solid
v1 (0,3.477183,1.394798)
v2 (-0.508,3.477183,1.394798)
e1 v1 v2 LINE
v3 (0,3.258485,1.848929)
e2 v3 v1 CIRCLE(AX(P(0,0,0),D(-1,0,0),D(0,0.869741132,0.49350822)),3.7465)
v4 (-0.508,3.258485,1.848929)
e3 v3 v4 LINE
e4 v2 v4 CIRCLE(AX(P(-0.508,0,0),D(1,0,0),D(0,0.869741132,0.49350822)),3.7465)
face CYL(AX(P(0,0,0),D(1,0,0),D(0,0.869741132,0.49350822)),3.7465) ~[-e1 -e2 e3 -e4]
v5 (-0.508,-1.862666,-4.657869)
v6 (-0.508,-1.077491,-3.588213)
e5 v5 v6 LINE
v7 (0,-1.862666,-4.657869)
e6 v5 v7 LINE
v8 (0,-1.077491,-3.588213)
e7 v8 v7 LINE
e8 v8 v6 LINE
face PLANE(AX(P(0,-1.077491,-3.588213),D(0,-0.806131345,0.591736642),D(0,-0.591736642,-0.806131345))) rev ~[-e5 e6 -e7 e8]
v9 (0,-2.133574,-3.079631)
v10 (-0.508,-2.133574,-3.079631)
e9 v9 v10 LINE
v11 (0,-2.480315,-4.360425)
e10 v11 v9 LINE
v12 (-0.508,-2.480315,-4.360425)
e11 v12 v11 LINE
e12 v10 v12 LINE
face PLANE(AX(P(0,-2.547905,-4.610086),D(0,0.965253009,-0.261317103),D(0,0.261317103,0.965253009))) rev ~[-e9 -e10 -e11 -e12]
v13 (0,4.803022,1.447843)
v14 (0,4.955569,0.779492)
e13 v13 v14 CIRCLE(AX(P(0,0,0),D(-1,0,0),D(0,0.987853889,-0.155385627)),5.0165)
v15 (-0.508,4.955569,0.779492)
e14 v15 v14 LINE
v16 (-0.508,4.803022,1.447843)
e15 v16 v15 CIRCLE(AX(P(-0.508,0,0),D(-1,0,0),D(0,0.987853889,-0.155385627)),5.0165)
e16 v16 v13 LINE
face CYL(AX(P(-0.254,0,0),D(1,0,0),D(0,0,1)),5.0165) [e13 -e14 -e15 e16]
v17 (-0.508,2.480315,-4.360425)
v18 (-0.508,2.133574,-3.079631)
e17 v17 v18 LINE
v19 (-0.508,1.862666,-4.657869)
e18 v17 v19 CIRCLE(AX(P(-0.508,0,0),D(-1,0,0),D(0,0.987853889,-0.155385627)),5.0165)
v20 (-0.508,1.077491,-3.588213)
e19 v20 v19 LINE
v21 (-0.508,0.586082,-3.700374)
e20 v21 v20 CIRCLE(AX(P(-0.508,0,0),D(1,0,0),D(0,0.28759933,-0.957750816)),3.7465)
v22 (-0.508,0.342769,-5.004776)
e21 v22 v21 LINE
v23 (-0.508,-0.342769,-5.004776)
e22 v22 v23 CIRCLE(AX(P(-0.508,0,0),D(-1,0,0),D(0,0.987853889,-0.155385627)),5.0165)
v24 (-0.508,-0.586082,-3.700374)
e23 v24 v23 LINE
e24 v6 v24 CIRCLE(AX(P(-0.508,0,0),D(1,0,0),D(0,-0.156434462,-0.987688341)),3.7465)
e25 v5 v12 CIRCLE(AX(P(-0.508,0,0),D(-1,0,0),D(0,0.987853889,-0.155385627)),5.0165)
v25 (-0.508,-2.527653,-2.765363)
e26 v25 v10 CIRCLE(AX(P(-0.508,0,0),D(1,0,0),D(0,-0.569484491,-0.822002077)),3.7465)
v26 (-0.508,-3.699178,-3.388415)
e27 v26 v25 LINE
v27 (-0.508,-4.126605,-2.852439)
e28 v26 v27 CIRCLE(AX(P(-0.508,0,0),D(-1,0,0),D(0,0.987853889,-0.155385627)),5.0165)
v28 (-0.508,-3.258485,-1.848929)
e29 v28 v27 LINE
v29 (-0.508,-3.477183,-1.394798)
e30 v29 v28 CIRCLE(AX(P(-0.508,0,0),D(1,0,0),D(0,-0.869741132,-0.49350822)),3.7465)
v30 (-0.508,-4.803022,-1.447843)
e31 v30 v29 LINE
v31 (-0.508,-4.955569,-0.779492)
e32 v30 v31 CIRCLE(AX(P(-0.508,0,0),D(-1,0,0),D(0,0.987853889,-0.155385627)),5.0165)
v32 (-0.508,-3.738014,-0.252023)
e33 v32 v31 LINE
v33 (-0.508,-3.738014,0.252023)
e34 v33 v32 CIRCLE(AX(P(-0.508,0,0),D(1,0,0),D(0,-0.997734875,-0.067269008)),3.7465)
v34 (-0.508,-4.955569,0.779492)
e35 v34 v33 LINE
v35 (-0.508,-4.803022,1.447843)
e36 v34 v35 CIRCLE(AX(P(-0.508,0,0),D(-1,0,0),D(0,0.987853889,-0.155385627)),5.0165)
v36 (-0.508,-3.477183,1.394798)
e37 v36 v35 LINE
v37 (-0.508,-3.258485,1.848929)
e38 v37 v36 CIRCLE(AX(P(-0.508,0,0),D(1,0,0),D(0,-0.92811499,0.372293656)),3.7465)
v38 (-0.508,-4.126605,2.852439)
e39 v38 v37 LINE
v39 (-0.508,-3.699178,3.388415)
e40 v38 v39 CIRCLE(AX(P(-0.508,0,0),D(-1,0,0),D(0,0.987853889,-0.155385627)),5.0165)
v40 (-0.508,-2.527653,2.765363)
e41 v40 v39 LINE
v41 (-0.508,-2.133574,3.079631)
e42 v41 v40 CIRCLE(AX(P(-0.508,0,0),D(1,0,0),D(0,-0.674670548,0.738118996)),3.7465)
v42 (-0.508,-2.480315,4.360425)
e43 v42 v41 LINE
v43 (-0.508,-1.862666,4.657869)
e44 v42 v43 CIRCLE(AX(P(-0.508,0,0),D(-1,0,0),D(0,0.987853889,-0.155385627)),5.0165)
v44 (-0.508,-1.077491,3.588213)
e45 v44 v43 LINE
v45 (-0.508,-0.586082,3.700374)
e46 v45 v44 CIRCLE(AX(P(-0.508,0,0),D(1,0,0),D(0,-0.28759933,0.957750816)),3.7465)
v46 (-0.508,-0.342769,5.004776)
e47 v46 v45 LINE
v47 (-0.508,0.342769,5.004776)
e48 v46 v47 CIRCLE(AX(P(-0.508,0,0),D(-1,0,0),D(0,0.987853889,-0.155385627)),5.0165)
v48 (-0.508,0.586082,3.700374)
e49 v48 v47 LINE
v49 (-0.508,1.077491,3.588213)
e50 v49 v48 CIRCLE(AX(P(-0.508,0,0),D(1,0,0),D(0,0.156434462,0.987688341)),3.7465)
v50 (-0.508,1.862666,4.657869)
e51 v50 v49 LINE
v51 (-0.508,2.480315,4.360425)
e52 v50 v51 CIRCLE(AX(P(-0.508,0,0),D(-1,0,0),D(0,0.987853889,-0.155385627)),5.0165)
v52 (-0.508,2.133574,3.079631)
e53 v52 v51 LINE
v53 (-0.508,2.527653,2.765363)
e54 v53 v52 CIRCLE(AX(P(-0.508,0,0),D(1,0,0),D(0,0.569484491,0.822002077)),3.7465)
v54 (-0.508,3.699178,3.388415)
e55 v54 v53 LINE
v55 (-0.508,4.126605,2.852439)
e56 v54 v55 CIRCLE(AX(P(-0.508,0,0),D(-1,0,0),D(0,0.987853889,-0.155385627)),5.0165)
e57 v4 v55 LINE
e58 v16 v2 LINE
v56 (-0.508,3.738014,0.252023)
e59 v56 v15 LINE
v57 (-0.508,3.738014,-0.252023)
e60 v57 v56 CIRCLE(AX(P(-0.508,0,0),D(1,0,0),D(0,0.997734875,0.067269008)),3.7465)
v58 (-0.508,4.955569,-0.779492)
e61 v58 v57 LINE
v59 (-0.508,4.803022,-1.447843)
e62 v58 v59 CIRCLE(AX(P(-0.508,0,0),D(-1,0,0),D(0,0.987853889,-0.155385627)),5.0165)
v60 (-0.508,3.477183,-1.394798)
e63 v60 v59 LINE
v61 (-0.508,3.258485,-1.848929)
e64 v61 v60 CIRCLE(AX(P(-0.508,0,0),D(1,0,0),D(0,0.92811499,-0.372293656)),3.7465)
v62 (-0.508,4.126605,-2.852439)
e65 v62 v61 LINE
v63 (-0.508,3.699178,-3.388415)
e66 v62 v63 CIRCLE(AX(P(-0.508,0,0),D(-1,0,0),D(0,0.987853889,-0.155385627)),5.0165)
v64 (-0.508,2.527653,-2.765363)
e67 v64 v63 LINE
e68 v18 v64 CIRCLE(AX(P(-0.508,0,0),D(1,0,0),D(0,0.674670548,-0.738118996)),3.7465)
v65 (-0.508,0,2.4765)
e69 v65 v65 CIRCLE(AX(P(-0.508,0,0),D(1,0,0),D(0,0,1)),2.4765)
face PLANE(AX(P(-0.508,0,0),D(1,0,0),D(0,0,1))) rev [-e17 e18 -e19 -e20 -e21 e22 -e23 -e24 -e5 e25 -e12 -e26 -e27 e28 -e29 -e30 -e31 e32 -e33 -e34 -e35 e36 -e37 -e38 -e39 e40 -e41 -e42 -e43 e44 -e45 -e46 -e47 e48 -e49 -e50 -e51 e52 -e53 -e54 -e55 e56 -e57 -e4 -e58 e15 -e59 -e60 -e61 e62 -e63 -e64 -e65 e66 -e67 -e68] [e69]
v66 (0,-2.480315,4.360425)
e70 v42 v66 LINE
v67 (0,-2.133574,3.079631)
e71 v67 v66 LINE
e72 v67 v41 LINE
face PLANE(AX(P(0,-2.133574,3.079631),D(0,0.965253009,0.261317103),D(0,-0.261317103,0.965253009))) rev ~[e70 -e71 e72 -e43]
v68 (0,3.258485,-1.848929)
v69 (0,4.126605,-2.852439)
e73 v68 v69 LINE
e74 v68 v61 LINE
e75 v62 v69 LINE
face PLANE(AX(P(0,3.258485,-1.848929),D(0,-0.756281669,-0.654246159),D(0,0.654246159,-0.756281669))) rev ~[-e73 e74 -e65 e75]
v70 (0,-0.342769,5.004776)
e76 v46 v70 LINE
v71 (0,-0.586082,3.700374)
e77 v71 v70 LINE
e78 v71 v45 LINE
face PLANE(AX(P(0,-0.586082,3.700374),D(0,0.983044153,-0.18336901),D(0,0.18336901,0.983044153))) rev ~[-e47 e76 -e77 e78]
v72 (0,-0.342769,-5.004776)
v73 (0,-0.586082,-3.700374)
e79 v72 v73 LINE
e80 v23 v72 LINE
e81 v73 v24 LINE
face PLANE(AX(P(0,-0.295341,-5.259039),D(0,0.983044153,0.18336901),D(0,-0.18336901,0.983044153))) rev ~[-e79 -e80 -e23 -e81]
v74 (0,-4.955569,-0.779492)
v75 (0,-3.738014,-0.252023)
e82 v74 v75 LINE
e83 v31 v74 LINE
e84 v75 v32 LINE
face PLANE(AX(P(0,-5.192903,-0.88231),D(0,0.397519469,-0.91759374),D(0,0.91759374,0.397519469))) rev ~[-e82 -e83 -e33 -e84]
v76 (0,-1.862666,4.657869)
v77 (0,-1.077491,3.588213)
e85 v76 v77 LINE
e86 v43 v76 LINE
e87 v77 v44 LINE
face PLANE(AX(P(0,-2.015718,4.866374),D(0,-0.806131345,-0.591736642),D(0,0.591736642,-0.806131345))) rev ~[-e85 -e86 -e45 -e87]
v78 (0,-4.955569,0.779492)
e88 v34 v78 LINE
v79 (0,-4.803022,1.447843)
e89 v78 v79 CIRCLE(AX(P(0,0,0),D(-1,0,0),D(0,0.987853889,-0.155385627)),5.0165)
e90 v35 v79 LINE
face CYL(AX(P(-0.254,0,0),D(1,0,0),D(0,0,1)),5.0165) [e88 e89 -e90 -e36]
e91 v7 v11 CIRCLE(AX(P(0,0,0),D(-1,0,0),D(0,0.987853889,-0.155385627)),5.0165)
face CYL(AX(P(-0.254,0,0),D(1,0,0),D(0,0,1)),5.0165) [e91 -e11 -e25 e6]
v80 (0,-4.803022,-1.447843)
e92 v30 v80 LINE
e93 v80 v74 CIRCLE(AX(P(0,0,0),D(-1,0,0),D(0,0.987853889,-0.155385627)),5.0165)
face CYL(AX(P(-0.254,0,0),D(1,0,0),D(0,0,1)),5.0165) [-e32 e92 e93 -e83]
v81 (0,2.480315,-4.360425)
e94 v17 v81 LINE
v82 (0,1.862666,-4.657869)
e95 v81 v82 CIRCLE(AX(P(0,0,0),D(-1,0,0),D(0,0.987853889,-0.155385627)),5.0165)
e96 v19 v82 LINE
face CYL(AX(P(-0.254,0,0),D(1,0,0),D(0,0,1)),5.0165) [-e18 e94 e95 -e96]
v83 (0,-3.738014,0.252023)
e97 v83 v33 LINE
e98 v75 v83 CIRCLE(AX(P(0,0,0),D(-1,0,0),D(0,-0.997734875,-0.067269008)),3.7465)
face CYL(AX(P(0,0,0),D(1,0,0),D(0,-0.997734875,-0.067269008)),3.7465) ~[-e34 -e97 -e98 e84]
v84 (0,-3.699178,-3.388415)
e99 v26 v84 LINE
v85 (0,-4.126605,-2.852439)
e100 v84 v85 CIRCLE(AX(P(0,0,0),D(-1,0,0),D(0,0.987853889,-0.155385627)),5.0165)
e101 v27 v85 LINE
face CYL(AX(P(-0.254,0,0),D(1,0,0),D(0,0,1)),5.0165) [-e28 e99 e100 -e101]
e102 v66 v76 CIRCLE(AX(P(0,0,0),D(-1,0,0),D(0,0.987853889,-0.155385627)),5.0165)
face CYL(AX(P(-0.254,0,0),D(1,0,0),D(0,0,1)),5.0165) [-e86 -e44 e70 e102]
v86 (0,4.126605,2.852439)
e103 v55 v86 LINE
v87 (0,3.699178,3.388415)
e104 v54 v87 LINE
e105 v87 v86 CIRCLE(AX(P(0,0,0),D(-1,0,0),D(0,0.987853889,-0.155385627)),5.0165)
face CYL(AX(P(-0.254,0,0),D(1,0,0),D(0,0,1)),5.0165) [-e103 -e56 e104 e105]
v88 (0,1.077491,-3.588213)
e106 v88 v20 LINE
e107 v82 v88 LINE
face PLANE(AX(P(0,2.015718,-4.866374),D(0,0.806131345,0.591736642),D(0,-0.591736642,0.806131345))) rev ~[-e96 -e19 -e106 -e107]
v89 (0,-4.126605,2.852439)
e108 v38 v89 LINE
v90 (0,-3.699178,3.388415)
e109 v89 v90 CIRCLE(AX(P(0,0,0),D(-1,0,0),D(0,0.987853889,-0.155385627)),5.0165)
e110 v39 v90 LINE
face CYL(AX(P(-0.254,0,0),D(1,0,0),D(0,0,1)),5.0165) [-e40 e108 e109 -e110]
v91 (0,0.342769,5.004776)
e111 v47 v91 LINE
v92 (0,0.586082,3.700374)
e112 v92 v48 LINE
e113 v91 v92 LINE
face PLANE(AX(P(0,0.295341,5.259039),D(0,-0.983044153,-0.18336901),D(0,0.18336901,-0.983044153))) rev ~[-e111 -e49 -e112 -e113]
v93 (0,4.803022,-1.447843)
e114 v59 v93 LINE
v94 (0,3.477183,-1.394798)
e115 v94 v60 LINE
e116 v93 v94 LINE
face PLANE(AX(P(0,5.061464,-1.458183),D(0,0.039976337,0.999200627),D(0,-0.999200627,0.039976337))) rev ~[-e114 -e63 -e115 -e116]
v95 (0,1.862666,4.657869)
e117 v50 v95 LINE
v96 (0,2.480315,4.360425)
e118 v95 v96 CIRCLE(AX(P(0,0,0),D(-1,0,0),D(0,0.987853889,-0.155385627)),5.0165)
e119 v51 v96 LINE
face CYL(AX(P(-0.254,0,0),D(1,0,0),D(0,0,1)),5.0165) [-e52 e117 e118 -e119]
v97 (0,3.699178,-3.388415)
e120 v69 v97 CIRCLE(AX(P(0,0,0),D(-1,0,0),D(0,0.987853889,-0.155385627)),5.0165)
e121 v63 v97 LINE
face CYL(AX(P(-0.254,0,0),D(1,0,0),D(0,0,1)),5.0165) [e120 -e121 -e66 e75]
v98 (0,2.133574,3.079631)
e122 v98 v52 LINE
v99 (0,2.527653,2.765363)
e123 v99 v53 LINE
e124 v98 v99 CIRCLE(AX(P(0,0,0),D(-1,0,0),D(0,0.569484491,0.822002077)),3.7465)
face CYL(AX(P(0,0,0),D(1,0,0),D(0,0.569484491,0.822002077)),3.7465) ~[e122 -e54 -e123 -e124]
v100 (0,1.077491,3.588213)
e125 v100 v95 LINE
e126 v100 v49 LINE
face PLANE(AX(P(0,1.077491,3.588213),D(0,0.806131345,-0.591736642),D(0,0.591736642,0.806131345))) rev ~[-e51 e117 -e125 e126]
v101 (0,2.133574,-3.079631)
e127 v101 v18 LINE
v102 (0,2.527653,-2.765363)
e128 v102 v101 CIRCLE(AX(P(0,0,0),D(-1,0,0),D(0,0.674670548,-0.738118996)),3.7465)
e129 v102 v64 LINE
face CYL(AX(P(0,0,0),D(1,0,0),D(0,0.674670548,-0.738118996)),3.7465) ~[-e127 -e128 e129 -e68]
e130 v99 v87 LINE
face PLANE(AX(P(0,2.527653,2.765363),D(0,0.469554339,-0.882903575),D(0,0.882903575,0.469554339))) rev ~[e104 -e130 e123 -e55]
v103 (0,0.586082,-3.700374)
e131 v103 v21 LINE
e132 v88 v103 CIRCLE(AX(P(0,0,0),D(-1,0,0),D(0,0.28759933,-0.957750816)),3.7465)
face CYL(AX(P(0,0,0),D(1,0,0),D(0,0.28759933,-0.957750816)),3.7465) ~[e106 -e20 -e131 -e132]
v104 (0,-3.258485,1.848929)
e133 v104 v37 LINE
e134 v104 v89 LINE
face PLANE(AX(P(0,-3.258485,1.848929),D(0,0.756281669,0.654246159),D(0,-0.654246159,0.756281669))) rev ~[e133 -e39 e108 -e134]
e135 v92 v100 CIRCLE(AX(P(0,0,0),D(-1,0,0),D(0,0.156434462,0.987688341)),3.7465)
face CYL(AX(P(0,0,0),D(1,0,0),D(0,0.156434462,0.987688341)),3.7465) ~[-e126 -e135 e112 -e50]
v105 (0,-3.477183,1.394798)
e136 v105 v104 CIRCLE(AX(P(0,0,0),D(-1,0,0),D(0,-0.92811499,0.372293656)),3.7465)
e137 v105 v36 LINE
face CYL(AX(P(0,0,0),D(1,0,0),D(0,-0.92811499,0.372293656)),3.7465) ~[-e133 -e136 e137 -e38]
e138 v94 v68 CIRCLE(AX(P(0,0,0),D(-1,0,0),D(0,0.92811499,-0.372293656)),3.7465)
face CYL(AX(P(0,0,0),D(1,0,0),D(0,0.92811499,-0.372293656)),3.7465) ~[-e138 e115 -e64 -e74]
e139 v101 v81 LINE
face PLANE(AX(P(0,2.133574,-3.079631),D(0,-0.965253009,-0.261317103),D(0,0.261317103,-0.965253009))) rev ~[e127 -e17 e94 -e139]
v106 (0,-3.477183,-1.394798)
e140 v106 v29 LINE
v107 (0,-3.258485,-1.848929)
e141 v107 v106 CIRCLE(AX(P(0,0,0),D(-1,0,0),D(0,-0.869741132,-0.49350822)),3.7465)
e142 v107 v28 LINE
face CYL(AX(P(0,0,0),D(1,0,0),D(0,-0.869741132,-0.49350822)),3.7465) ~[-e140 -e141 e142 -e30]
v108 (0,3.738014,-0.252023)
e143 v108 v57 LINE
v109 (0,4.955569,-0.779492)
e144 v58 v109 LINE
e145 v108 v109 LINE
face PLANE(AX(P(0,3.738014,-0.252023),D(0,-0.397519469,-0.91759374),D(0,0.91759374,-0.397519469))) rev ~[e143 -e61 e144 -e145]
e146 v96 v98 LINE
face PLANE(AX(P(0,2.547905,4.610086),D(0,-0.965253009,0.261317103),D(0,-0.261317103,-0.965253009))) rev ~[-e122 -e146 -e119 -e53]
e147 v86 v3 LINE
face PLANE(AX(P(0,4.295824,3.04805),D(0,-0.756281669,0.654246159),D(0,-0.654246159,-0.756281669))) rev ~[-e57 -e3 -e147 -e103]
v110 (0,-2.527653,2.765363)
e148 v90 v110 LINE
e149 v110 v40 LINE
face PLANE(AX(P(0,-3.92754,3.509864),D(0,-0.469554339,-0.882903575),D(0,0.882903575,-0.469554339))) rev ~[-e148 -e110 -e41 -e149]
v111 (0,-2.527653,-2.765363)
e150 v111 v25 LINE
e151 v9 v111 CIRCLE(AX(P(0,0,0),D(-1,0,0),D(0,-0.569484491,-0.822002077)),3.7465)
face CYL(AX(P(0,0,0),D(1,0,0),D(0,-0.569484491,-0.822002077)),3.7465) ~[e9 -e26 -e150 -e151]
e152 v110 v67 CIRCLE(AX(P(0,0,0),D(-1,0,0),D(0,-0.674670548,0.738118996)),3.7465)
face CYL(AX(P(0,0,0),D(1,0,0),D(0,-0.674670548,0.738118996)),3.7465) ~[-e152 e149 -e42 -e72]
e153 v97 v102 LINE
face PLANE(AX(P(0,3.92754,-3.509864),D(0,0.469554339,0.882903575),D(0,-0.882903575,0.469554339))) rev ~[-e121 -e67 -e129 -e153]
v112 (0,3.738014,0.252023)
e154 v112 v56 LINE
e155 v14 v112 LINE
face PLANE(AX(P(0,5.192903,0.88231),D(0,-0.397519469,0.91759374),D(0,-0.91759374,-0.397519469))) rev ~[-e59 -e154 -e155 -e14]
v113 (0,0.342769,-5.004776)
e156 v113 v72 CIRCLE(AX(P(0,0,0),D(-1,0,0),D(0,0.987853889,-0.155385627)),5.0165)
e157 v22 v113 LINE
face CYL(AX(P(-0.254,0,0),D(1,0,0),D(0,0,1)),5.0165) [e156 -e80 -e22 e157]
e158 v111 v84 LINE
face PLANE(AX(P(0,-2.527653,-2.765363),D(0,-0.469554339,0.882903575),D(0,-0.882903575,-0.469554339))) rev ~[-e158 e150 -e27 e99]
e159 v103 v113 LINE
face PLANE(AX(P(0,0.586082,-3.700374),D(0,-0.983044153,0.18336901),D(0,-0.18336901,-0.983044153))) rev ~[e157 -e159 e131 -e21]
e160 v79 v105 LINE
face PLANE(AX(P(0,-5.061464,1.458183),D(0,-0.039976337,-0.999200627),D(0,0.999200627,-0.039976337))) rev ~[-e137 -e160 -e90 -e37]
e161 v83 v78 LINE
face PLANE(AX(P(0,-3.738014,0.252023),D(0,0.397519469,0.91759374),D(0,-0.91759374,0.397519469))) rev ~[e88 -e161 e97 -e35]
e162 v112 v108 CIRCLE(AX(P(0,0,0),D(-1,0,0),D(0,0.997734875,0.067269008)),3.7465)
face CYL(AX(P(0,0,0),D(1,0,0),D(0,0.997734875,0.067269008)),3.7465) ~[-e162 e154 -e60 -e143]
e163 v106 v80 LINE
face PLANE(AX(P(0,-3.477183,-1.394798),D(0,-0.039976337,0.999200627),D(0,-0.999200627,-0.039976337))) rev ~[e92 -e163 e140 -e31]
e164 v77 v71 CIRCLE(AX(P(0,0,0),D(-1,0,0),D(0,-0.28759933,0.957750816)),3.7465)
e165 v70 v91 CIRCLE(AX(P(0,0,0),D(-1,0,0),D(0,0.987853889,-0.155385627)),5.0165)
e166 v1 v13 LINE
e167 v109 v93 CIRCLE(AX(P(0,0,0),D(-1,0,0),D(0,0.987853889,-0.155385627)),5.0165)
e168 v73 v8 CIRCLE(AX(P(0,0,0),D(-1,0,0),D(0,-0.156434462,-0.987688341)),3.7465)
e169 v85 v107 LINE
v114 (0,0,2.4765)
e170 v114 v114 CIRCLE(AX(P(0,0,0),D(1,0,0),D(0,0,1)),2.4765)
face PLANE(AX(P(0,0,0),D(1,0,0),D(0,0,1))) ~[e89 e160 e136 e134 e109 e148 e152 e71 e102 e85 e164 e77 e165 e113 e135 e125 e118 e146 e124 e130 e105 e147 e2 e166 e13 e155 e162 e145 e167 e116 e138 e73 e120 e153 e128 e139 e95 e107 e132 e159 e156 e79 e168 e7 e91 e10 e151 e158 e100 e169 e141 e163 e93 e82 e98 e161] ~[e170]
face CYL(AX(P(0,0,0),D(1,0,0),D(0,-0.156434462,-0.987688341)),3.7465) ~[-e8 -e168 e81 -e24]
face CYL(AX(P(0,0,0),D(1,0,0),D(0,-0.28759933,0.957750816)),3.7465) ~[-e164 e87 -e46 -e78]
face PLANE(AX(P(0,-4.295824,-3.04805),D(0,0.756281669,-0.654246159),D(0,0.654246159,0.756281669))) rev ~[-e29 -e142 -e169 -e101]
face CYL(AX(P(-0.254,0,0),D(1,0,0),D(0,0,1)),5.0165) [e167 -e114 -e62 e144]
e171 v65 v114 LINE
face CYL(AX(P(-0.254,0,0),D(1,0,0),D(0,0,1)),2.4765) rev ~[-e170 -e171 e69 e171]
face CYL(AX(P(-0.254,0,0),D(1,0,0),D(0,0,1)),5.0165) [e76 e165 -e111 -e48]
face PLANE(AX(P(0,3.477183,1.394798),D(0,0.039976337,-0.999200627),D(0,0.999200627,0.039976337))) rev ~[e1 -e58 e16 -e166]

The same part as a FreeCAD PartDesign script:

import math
import FreeCAD as App
import Part
import Sketcher
Q = App.Units.Quantity


def add_polygon(sketch, points):
    """Adds a closed chain of lines whose ends are joined by coincident constraints."""
    first, n = sketch.GeometryCount, len(points)
    for a, b in zip(points, points[1:] + points[:1]):
        sketch.addGeometry(Part.LineSegment(App.Vector(*a, 0), App.Vector(*b, 0)), False)
    for i in range(n):
        sketch.addConstraint(Sketcher.Constraint("Coincident", first + i, 2, first + (i + 1) % n, 1))

doc = App.newDocument("Part")
body = doc.addObject("PartDesign::Body", "Body")

# Sketch on XY plane
sketch1 = doc.addObject("Sketcher::SketchObject", "Sketch")
body.addObject(sketch1)
sketch1.AttachmentSupport = (doc.XY_Plane, [""])
sketch1.MapMode = "FlatFace"
add_polygon(sketch1, [(-0.5, 5), (-0.5, 2.5), (0, 2.5), (0, 5)])  # lines 0-3
sketch1.addConstraint([
    Sketcher.Constraint("Vertical", 0),
    Sketcher.Constraint("Horizontal", 1),
    Sketcher.Constraint("Vertical", 2),
    Sketcher.Constraint("Horizontal", 3),
    Sketcher.Constraint("PointOnObject", 1, 2, -2),
    Sketcher.Constraint("DistanceY", 0, 2, 0, 1, Q("0.1 in")),
    Sketcher.Constraint("DistanceX", 1, 1, 1, 2, Q("0.02 in")),
    Sketcher.Constraint("DistanceY", -1, 1, 0, 2, Q("0.0975 in")),
])
revolution = doc.addObject("PartDesign::Revolution", "Revolution")
body.addObject(revolution)
revolution.Profile = sketch1
revolution.ReferenceAxis = (sketch1, ["H_Axis"])
revolution.Angle = 360

# Sketch on YZ plane
sketch2 = doc.addObject("Sketcher::SketchObject", "Sketch001")
body.addObject(sketch2)
sketch2.AttachmentSupport = (doc.YZ_Plane, [""])
sketch2.MapMode = "FlatFace"
sketch2.addGeometry([
    Part.LineSegment(App.Vector(5.2, 0.9, 0), App.Vector(3.7, 0.3, 0)),
    Part.ArcOfCircle(Part.Circle(App.Vector(0, 0, 0), App.Vector(0, 0, 1), 3.7), math.radians(-3.86), math.radians(3.86)),
    Part.LineSegment(App.Vector(3.7, -0.3, 0), App.Vector(5.2, -0.9, 0)),
    Part.ArcOfCircle(Part.Circle(App.Vector(0, 0, 0), App.Vector(0, 0, 1), 5.3), math.radians(-9.64), math.radians(9.64)),
], False)
sketch2.addConstraint([
    Sketcher.Constraint("Coincident", 0, 2, 1, 2),
    Sketcher.Constraint("Coincident", 1, 1, 2, 1),
    Sketcher.Constraint("Coincident", 2, 2, 3, 1),
    Sketcher.Constraint("Coincident", 3, 2, 0, 1),
    Sketcher.Constraint("Coincident", 1, 3, -1, 1),
    Sketcher.Constraint("Coincident", 3, 3, -1, 1),
    Sketcher.Constraint("Vertical", 0, 2, 1, 1),
    Sketcher.Constraint("Vertical", 2, 2, 3, 2),
    Sketcher.Constraint("Radius", 1, Q("0.1475 in")),
    Sketcher.Constraint("Radius", 3, Q("5.267325 mm")),
    Sketcher.Constraint("Distance", 0, Q("1.585548 mm")),
    Sketcher.Constraint("DistanceY", 2, 2, -1, 1, Q("0.88231 mm")),
])
pocket1 = doc.addObject("PartDesign::Pocket", "Pocket")
body.addObject(pocket1)
pocket1.Profile = sketch2
pocket1.Type = "ThroughAll"
doc.recompute()

polarpattern = doc.addObject("PartDesign::PolarPattern", "PolarPattern")
body.addObject(polarpattern)
polarpattern.Originals = [pocket1]
polarpattern.Axis = (doc.X_Axis, [""])
polarpattern.Angle = 360
polarpattern.Occurrences = 14
body.Tip = polarpattern

doc.recompute()
